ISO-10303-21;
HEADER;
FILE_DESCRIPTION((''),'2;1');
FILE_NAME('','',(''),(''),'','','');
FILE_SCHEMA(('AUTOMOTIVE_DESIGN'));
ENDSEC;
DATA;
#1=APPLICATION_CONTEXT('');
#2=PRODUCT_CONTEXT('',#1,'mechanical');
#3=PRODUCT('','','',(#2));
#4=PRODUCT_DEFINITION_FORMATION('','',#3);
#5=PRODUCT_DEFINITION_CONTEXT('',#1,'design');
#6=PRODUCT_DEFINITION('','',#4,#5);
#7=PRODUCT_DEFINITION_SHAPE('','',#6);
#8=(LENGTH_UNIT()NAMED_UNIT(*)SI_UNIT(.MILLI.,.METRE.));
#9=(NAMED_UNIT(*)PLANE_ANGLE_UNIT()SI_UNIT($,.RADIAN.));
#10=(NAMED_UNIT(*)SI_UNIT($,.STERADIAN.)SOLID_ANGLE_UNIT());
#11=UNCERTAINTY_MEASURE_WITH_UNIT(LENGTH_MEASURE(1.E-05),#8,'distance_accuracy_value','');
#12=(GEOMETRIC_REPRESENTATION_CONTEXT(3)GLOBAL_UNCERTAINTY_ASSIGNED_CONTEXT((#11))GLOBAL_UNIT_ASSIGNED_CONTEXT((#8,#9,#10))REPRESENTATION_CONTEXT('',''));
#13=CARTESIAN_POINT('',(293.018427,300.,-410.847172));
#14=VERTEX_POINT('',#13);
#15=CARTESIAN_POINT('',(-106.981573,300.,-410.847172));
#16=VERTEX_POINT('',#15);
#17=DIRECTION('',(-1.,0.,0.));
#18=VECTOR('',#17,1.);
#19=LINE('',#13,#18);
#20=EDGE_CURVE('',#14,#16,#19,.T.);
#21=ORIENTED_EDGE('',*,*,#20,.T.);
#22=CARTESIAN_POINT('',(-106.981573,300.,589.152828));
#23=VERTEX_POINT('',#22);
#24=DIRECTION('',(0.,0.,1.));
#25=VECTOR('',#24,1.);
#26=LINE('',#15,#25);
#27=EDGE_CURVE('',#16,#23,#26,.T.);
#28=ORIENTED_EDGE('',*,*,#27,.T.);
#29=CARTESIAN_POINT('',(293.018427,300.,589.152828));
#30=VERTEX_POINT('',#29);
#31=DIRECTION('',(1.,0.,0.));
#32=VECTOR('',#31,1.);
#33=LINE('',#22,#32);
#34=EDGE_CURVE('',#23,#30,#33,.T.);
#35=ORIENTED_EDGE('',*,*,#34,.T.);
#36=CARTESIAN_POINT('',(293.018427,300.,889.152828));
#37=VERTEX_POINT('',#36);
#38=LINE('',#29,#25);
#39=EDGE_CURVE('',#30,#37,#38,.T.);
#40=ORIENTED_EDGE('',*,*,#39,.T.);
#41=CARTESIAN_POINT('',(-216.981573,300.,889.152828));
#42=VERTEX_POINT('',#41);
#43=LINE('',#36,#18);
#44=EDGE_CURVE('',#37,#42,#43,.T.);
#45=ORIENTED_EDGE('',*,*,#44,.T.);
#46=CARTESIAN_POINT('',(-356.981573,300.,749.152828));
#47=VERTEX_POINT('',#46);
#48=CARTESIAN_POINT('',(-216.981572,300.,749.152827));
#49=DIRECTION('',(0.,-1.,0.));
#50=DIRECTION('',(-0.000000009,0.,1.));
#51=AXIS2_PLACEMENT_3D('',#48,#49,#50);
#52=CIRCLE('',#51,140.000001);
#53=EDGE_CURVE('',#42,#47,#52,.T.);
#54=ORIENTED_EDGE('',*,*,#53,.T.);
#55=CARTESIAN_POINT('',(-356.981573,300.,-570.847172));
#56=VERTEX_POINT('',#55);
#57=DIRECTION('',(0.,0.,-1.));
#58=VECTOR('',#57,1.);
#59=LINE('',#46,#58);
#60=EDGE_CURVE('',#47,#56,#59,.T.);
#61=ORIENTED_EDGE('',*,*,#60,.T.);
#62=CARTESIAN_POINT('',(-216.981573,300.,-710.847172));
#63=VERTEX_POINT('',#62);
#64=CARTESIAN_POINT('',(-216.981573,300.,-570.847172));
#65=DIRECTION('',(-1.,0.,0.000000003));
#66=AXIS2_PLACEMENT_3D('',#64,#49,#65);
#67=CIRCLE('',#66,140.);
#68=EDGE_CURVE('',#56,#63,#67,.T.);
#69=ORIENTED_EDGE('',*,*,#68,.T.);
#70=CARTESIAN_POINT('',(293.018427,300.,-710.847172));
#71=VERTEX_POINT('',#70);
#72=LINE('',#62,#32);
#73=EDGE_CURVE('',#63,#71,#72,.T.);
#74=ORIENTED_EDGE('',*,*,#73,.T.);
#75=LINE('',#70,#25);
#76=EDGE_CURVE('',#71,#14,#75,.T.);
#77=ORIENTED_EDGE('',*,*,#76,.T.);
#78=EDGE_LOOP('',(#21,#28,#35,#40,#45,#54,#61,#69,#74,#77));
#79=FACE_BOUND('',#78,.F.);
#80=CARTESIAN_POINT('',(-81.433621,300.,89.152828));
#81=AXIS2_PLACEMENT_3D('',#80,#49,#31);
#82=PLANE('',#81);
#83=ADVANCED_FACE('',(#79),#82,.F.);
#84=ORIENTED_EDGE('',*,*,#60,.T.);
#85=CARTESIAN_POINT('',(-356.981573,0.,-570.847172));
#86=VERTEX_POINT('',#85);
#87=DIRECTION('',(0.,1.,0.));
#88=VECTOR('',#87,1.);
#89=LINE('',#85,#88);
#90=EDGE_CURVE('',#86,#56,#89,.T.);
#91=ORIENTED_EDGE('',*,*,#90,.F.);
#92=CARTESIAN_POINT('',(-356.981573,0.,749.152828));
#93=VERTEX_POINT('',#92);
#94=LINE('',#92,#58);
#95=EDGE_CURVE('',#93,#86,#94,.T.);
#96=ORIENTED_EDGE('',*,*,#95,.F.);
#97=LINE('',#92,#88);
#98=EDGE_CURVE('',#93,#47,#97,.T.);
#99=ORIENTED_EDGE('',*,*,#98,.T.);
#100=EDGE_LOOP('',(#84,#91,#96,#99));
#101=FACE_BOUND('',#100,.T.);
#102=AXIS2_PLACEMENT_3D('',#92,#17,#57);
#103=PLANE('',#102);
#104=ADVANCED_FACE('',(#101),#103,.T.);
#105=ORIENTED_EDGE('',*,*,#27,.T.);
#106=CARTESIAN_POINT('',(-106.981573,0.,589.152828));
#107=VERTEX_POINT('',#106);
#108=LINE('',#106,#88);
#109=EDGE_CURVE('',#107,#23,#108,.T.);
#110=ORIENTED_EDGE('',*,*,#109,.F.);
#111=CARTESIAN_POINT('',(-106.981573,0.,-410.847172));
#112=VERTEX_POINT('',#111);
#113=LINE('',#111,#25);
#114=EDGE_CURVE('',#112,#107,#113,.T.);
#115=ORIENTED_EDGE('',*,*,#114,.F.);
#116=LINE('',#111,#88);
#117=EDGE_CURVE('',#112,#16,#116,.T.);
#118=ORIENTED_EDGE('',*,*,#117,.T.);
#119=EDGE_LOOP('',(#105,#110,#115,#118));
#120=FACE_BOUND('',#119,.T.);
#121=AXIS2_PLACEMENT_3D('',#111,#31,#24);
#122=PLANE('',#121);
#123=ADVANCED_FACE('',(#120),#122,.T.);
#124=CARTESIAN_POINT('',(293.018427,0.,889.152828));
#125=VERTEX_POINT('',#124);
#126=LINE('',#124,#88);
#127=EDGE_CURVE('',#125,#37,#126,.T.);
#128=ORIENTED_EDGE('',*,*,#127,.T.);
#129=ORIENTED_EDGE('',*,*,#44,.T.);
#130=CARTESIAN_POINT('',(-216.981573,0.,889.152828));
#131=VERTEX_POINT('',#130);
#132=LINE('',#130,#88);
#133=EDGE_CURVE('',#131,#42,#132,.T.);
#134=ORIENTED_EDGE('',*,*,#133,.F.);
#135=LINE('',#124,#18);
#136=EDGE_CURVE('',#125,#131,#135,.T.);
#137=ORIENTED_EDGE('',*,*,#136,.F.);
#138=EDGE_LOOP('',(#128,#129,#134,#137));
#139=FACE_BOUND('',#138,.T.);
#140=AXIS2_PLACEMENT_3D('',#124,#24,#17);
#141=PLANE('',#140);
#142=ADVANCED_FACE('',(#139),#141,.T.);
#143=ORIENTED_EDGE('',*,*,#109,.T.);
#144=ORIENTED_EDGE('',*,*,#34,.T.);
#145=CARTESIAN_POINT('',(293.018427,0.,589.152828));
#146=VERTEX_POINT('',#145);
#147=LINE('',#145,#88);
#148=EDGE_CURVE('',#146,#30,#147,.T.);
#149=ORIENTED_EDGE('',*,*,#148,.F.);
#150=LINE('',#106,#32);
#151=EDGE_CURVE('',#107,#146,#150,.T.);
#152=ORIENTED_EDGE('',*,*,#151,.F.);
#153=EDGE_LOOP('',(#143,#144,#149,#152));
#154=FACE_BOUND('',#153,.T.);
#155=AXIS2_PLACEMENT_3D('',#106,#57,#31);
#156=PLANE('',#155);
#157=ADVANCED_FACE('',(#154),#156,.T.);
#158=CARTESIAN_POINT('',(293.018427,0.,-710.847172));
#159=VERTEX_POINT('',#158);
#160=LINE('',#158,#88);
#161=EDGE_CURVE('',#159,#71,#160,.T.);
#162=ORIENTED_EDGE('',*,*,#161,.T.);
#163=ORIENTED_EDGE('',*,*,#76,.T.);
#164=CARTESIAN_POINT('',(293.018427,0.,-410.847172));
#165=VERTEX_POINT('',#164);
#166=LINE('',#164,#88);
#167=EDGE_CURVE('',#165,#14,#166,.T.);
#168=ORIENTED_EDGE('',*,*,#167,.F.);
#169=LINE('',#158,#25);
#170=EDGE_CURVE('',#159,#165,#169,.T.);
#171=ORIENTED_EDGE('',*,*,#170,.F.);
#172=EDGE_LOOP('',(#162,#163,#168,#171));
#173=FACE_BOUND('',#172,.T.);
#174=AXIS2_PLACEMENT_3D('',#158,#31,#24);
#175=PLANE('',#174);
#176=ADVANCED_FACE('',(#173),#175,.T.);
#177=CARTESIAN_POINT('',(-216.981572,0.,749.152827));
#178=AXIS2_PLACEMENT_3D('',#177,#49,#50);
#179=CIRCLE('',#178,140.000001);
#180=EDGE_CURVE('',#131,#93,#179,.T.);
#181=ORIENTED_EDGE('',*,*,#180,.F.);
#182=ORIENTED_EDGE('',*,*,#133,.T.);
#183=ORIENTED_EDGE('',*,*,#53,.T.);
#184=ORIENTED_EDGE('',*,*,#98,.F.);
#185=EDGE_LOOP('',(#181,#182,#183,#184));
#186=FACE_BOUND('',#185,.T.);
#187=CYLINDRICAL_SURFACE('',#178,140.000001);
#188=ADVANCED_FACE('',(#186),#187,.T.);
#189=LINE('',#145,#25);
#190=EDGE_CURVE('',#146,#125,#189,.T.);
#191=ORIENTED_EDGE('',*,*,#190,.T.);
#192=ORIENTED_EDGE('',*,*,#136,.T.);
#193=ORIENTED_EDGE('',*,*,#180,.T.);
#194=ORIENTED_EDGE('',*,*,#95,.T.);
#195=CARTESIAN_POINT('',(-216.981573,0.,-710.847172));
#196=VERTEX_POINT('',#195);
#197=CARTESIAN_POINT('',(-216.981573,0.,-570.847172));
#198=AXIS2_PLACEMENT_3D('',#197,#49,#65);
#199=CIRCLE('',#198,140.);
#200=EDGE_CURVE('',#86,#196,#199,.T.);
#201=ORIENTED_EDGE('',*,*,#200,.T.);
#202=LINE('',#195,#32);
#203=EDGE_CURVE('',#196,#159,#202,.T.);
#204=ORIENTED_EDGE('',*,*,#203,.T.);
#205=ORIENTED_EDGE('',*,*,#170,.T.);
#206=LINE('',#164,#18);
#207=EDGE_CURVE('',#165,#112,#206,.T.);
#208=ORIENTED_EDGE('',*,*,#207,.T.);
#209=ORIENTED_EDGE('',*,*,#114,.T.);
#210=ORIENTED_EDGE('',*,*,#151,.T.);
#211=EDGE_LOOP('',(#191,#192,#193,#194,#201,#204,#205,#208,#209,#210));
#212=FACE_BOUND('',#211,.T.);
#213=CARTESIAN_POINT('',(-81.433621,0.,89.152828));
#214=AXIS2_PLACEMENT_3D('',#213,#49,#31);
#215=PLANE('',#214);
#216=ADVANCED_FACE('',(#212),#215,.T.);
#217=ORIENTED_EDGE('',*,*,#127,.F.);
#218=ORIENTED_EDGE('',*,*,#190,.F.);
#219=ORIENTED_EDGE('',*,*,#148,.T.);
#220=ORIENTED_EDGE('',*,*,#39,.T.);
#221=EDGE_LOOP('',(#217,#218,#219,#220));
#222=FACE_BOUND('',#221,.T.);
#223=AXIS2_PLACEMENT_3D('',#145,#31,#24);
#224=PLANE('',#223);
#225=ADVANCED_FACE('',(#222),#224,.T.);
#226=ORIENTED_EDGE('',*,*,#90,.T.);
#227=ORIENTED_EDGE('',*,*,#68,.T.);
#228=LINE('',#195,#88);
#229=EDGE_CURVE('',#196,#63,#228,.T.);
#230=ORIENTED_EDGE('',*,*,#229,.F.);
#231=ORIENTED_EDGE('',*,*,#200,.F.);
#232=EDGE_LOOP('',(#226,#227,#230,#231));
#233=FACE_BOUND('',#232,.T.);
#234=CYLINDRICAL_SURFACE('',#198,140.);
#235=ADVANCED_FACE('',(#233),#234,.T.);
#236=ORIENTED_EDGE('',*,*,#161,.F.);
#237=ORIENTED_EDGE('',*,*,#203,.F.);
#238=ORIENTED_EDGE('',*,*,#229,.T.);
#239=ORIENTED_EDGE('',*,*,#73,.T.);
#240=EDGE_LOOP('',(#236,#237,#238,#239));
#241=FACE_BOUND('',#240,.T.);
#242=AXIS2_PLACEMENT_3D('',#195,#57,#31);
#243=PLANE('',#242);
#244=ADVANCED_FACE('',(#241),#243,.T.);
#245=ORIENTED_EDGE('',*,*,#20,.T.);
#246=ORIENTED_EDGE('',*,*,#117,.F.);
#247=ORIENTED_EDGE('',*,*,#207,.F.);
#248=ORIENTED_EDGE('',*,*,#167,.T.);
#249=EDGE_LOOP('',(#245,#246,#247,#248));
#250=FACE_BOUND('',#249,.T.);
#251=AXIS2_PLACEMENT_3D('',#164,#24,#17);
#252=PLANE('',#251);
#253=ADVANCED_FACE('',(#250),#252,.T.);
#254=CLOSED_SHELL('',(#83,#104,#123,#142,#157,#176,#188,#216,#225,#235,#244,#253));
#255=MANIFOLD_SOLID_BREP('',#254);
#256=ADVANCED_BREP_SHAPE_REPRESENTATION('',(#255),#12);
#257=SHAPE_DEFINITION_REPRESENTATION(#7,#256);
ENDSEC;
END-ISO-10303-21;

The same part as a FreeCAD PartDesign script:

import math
import FreeCAD as App
import Part
import Sketcher

V = App.Vector

doc = App.newDocument("Part")
body = doc.addObject("PartDesign::Body", "Body")

sketch1 = body.newObject("Sketcher::SketchObject", "Sketch")
sketch1.AttachmentSupport = (doc.getObject("XZ_Plane"), [""])
sketch1.MapMode = "FlatFace"
sketch1.addGeometry(Part.ArcOfCircle(Part.Circle(V(-216.981572, 749.152827, 0), V(0, 0, 1), 140.000001), math.radians(90.000001), math.radians(179.999999)), False)
sketch1.addGeometry(Part.LineSegment(V(-356.981573, 749.152828, 0), V(-356.981573, -570.847172, 0)), False)
sketch1.addGeometry(Part.ArcOfCircle(Part.Circle(V(-216.981573, -570.847172, 0), V(0, 0, 1), 140), math.radians(180), math.radians(270)), False)
sketch1.addGeometry(Part.LineSegment(V(-216.981573, -710.847172, 0), V(293.018427, -710.847172, 0)), False)
sketch1.addGeometry(Part.LineSegment(V(293.018427, -710.847172, 0), V(293.018427, -410.847172, 0)), False)
sketch1.addGeometry(Part.LineSegment(V(293.018427, -410.847172, 0), V(-106.981573, -410.847172, 0)), False)
sketch1.addGeometry(Part.LineSegment(V(-106.981573, -410.847172, 0), V(-106.981573, 589.152828, 0)), False)
sketch1.addGeometry(Part.LineSegment(V(-106.981573, 589.152828, 0), V(293.018427, 589.152828, 0)), False)
sketch1.addGeometry(Part.LineSegment(V(293.018427, 589.152828, 0), V(293.018427, 889.152828, 0)), False)
sketch1.addGeometry(Part.LineSegment(V(293.018427, 889.152828, 0), V(-216.981573, 889.152828, 0)), False)
sketch1.addConstraint(Sketcher.Constraint("Tangent", 0, 2, 1, 1))
sketch1.addConstraint(Sketcher.Constraint("Tangent", 1, 2, 2, 1))
sketch1.addConstraint(Sketcher.Constraint("Tangent", 2, 2, 3, 1))
sketch1.addConstraint(Sketcher.Constraint("Coincident", 3, 2, 4, 1))
sketch1.addConstraint(Sketcher.Constraint("Coincident", 4, 2, 5, 1))
sketch1.addConstraint(Sketcher.Constraint("Coincident", 5, 2, 6, 1))
sketch1.addConstraint(Sketcher.Constraint("Coincident", 6, 2, 7, 1))
sketch1.addConstraint(Sketcher.Constraint("Coincident", 7, 2, 8, 1))
sketch1.addConstraint(Sketcher.Constraint("Coincident", 8, 2, 9, 1))
sketch1.addConstraint(Sketcher.Constraint("Tangent", 9, 2, 0, 1))
sketch1.addConstraint(Sketcher.Constraint("Vertical", 1))
sketch1.addConstraint(Sketcher.Constraint("Horizontal", 3))
sketch1.addConstraint(Sketcher.Constraint("Vertical", 4))
sketch1.addConstraint(Sketcher.Constraint("Horizontal", 5))
sketch1.addConstraint(Sketcher.Constraint("Vertical", 6))
sketch1.addConstraint(Sketcher.Constraint("Horizontal", 7))
sketch1.addConstraint(Sketcher.Constraint("Vertical", 8))
sketch1.addConstraint(Sketcher.Constraint("Horizontal", 9))
sketch1.addConstraint(Sketcher.Constraint("Equal", 0, 2))
sketch1.addConstraint(Sketcher.Constraint("Vertical", 4, 2, 7, 2))
sketch1.addConstraint(Sketcher.Constraint("Equal", 4, 8))
sketch1.addConstraint(Sketcher.Constraint("Radius", 0, 140.000001))
sketch1.addConstraint(Sketcher.Constraint("DistanceX", 3, 1, 3, 2, 510.0))
sketch1.addConstraint(Sketcher.Constraint("DistanceX", 5, 2, 5, 1, 400.0))
sketch1.addConstraint(Sketcher.Constraint("DistanceY", 1, 2, 1, 1, 1320.0))
sketch1.addConstraint(Sketcher.Constraint("DistanceY", 4, 1, 4, 2, 300.0))
sketch1.addConstraint(Sketcher.Constraint("DistanceX", 0, 3, -1, 1, 216.981572))
sketch1.addConstraint(Sketcher.Constraint("DistanceY", 1, 2, -1, 1, 570.847172))
pad1 = body.newObject("PartDesign::Pad", "Pad")
pad1.Profile = sketch1
pad1.Length = 300
pad1.Reversed = True

doc.recompute()
